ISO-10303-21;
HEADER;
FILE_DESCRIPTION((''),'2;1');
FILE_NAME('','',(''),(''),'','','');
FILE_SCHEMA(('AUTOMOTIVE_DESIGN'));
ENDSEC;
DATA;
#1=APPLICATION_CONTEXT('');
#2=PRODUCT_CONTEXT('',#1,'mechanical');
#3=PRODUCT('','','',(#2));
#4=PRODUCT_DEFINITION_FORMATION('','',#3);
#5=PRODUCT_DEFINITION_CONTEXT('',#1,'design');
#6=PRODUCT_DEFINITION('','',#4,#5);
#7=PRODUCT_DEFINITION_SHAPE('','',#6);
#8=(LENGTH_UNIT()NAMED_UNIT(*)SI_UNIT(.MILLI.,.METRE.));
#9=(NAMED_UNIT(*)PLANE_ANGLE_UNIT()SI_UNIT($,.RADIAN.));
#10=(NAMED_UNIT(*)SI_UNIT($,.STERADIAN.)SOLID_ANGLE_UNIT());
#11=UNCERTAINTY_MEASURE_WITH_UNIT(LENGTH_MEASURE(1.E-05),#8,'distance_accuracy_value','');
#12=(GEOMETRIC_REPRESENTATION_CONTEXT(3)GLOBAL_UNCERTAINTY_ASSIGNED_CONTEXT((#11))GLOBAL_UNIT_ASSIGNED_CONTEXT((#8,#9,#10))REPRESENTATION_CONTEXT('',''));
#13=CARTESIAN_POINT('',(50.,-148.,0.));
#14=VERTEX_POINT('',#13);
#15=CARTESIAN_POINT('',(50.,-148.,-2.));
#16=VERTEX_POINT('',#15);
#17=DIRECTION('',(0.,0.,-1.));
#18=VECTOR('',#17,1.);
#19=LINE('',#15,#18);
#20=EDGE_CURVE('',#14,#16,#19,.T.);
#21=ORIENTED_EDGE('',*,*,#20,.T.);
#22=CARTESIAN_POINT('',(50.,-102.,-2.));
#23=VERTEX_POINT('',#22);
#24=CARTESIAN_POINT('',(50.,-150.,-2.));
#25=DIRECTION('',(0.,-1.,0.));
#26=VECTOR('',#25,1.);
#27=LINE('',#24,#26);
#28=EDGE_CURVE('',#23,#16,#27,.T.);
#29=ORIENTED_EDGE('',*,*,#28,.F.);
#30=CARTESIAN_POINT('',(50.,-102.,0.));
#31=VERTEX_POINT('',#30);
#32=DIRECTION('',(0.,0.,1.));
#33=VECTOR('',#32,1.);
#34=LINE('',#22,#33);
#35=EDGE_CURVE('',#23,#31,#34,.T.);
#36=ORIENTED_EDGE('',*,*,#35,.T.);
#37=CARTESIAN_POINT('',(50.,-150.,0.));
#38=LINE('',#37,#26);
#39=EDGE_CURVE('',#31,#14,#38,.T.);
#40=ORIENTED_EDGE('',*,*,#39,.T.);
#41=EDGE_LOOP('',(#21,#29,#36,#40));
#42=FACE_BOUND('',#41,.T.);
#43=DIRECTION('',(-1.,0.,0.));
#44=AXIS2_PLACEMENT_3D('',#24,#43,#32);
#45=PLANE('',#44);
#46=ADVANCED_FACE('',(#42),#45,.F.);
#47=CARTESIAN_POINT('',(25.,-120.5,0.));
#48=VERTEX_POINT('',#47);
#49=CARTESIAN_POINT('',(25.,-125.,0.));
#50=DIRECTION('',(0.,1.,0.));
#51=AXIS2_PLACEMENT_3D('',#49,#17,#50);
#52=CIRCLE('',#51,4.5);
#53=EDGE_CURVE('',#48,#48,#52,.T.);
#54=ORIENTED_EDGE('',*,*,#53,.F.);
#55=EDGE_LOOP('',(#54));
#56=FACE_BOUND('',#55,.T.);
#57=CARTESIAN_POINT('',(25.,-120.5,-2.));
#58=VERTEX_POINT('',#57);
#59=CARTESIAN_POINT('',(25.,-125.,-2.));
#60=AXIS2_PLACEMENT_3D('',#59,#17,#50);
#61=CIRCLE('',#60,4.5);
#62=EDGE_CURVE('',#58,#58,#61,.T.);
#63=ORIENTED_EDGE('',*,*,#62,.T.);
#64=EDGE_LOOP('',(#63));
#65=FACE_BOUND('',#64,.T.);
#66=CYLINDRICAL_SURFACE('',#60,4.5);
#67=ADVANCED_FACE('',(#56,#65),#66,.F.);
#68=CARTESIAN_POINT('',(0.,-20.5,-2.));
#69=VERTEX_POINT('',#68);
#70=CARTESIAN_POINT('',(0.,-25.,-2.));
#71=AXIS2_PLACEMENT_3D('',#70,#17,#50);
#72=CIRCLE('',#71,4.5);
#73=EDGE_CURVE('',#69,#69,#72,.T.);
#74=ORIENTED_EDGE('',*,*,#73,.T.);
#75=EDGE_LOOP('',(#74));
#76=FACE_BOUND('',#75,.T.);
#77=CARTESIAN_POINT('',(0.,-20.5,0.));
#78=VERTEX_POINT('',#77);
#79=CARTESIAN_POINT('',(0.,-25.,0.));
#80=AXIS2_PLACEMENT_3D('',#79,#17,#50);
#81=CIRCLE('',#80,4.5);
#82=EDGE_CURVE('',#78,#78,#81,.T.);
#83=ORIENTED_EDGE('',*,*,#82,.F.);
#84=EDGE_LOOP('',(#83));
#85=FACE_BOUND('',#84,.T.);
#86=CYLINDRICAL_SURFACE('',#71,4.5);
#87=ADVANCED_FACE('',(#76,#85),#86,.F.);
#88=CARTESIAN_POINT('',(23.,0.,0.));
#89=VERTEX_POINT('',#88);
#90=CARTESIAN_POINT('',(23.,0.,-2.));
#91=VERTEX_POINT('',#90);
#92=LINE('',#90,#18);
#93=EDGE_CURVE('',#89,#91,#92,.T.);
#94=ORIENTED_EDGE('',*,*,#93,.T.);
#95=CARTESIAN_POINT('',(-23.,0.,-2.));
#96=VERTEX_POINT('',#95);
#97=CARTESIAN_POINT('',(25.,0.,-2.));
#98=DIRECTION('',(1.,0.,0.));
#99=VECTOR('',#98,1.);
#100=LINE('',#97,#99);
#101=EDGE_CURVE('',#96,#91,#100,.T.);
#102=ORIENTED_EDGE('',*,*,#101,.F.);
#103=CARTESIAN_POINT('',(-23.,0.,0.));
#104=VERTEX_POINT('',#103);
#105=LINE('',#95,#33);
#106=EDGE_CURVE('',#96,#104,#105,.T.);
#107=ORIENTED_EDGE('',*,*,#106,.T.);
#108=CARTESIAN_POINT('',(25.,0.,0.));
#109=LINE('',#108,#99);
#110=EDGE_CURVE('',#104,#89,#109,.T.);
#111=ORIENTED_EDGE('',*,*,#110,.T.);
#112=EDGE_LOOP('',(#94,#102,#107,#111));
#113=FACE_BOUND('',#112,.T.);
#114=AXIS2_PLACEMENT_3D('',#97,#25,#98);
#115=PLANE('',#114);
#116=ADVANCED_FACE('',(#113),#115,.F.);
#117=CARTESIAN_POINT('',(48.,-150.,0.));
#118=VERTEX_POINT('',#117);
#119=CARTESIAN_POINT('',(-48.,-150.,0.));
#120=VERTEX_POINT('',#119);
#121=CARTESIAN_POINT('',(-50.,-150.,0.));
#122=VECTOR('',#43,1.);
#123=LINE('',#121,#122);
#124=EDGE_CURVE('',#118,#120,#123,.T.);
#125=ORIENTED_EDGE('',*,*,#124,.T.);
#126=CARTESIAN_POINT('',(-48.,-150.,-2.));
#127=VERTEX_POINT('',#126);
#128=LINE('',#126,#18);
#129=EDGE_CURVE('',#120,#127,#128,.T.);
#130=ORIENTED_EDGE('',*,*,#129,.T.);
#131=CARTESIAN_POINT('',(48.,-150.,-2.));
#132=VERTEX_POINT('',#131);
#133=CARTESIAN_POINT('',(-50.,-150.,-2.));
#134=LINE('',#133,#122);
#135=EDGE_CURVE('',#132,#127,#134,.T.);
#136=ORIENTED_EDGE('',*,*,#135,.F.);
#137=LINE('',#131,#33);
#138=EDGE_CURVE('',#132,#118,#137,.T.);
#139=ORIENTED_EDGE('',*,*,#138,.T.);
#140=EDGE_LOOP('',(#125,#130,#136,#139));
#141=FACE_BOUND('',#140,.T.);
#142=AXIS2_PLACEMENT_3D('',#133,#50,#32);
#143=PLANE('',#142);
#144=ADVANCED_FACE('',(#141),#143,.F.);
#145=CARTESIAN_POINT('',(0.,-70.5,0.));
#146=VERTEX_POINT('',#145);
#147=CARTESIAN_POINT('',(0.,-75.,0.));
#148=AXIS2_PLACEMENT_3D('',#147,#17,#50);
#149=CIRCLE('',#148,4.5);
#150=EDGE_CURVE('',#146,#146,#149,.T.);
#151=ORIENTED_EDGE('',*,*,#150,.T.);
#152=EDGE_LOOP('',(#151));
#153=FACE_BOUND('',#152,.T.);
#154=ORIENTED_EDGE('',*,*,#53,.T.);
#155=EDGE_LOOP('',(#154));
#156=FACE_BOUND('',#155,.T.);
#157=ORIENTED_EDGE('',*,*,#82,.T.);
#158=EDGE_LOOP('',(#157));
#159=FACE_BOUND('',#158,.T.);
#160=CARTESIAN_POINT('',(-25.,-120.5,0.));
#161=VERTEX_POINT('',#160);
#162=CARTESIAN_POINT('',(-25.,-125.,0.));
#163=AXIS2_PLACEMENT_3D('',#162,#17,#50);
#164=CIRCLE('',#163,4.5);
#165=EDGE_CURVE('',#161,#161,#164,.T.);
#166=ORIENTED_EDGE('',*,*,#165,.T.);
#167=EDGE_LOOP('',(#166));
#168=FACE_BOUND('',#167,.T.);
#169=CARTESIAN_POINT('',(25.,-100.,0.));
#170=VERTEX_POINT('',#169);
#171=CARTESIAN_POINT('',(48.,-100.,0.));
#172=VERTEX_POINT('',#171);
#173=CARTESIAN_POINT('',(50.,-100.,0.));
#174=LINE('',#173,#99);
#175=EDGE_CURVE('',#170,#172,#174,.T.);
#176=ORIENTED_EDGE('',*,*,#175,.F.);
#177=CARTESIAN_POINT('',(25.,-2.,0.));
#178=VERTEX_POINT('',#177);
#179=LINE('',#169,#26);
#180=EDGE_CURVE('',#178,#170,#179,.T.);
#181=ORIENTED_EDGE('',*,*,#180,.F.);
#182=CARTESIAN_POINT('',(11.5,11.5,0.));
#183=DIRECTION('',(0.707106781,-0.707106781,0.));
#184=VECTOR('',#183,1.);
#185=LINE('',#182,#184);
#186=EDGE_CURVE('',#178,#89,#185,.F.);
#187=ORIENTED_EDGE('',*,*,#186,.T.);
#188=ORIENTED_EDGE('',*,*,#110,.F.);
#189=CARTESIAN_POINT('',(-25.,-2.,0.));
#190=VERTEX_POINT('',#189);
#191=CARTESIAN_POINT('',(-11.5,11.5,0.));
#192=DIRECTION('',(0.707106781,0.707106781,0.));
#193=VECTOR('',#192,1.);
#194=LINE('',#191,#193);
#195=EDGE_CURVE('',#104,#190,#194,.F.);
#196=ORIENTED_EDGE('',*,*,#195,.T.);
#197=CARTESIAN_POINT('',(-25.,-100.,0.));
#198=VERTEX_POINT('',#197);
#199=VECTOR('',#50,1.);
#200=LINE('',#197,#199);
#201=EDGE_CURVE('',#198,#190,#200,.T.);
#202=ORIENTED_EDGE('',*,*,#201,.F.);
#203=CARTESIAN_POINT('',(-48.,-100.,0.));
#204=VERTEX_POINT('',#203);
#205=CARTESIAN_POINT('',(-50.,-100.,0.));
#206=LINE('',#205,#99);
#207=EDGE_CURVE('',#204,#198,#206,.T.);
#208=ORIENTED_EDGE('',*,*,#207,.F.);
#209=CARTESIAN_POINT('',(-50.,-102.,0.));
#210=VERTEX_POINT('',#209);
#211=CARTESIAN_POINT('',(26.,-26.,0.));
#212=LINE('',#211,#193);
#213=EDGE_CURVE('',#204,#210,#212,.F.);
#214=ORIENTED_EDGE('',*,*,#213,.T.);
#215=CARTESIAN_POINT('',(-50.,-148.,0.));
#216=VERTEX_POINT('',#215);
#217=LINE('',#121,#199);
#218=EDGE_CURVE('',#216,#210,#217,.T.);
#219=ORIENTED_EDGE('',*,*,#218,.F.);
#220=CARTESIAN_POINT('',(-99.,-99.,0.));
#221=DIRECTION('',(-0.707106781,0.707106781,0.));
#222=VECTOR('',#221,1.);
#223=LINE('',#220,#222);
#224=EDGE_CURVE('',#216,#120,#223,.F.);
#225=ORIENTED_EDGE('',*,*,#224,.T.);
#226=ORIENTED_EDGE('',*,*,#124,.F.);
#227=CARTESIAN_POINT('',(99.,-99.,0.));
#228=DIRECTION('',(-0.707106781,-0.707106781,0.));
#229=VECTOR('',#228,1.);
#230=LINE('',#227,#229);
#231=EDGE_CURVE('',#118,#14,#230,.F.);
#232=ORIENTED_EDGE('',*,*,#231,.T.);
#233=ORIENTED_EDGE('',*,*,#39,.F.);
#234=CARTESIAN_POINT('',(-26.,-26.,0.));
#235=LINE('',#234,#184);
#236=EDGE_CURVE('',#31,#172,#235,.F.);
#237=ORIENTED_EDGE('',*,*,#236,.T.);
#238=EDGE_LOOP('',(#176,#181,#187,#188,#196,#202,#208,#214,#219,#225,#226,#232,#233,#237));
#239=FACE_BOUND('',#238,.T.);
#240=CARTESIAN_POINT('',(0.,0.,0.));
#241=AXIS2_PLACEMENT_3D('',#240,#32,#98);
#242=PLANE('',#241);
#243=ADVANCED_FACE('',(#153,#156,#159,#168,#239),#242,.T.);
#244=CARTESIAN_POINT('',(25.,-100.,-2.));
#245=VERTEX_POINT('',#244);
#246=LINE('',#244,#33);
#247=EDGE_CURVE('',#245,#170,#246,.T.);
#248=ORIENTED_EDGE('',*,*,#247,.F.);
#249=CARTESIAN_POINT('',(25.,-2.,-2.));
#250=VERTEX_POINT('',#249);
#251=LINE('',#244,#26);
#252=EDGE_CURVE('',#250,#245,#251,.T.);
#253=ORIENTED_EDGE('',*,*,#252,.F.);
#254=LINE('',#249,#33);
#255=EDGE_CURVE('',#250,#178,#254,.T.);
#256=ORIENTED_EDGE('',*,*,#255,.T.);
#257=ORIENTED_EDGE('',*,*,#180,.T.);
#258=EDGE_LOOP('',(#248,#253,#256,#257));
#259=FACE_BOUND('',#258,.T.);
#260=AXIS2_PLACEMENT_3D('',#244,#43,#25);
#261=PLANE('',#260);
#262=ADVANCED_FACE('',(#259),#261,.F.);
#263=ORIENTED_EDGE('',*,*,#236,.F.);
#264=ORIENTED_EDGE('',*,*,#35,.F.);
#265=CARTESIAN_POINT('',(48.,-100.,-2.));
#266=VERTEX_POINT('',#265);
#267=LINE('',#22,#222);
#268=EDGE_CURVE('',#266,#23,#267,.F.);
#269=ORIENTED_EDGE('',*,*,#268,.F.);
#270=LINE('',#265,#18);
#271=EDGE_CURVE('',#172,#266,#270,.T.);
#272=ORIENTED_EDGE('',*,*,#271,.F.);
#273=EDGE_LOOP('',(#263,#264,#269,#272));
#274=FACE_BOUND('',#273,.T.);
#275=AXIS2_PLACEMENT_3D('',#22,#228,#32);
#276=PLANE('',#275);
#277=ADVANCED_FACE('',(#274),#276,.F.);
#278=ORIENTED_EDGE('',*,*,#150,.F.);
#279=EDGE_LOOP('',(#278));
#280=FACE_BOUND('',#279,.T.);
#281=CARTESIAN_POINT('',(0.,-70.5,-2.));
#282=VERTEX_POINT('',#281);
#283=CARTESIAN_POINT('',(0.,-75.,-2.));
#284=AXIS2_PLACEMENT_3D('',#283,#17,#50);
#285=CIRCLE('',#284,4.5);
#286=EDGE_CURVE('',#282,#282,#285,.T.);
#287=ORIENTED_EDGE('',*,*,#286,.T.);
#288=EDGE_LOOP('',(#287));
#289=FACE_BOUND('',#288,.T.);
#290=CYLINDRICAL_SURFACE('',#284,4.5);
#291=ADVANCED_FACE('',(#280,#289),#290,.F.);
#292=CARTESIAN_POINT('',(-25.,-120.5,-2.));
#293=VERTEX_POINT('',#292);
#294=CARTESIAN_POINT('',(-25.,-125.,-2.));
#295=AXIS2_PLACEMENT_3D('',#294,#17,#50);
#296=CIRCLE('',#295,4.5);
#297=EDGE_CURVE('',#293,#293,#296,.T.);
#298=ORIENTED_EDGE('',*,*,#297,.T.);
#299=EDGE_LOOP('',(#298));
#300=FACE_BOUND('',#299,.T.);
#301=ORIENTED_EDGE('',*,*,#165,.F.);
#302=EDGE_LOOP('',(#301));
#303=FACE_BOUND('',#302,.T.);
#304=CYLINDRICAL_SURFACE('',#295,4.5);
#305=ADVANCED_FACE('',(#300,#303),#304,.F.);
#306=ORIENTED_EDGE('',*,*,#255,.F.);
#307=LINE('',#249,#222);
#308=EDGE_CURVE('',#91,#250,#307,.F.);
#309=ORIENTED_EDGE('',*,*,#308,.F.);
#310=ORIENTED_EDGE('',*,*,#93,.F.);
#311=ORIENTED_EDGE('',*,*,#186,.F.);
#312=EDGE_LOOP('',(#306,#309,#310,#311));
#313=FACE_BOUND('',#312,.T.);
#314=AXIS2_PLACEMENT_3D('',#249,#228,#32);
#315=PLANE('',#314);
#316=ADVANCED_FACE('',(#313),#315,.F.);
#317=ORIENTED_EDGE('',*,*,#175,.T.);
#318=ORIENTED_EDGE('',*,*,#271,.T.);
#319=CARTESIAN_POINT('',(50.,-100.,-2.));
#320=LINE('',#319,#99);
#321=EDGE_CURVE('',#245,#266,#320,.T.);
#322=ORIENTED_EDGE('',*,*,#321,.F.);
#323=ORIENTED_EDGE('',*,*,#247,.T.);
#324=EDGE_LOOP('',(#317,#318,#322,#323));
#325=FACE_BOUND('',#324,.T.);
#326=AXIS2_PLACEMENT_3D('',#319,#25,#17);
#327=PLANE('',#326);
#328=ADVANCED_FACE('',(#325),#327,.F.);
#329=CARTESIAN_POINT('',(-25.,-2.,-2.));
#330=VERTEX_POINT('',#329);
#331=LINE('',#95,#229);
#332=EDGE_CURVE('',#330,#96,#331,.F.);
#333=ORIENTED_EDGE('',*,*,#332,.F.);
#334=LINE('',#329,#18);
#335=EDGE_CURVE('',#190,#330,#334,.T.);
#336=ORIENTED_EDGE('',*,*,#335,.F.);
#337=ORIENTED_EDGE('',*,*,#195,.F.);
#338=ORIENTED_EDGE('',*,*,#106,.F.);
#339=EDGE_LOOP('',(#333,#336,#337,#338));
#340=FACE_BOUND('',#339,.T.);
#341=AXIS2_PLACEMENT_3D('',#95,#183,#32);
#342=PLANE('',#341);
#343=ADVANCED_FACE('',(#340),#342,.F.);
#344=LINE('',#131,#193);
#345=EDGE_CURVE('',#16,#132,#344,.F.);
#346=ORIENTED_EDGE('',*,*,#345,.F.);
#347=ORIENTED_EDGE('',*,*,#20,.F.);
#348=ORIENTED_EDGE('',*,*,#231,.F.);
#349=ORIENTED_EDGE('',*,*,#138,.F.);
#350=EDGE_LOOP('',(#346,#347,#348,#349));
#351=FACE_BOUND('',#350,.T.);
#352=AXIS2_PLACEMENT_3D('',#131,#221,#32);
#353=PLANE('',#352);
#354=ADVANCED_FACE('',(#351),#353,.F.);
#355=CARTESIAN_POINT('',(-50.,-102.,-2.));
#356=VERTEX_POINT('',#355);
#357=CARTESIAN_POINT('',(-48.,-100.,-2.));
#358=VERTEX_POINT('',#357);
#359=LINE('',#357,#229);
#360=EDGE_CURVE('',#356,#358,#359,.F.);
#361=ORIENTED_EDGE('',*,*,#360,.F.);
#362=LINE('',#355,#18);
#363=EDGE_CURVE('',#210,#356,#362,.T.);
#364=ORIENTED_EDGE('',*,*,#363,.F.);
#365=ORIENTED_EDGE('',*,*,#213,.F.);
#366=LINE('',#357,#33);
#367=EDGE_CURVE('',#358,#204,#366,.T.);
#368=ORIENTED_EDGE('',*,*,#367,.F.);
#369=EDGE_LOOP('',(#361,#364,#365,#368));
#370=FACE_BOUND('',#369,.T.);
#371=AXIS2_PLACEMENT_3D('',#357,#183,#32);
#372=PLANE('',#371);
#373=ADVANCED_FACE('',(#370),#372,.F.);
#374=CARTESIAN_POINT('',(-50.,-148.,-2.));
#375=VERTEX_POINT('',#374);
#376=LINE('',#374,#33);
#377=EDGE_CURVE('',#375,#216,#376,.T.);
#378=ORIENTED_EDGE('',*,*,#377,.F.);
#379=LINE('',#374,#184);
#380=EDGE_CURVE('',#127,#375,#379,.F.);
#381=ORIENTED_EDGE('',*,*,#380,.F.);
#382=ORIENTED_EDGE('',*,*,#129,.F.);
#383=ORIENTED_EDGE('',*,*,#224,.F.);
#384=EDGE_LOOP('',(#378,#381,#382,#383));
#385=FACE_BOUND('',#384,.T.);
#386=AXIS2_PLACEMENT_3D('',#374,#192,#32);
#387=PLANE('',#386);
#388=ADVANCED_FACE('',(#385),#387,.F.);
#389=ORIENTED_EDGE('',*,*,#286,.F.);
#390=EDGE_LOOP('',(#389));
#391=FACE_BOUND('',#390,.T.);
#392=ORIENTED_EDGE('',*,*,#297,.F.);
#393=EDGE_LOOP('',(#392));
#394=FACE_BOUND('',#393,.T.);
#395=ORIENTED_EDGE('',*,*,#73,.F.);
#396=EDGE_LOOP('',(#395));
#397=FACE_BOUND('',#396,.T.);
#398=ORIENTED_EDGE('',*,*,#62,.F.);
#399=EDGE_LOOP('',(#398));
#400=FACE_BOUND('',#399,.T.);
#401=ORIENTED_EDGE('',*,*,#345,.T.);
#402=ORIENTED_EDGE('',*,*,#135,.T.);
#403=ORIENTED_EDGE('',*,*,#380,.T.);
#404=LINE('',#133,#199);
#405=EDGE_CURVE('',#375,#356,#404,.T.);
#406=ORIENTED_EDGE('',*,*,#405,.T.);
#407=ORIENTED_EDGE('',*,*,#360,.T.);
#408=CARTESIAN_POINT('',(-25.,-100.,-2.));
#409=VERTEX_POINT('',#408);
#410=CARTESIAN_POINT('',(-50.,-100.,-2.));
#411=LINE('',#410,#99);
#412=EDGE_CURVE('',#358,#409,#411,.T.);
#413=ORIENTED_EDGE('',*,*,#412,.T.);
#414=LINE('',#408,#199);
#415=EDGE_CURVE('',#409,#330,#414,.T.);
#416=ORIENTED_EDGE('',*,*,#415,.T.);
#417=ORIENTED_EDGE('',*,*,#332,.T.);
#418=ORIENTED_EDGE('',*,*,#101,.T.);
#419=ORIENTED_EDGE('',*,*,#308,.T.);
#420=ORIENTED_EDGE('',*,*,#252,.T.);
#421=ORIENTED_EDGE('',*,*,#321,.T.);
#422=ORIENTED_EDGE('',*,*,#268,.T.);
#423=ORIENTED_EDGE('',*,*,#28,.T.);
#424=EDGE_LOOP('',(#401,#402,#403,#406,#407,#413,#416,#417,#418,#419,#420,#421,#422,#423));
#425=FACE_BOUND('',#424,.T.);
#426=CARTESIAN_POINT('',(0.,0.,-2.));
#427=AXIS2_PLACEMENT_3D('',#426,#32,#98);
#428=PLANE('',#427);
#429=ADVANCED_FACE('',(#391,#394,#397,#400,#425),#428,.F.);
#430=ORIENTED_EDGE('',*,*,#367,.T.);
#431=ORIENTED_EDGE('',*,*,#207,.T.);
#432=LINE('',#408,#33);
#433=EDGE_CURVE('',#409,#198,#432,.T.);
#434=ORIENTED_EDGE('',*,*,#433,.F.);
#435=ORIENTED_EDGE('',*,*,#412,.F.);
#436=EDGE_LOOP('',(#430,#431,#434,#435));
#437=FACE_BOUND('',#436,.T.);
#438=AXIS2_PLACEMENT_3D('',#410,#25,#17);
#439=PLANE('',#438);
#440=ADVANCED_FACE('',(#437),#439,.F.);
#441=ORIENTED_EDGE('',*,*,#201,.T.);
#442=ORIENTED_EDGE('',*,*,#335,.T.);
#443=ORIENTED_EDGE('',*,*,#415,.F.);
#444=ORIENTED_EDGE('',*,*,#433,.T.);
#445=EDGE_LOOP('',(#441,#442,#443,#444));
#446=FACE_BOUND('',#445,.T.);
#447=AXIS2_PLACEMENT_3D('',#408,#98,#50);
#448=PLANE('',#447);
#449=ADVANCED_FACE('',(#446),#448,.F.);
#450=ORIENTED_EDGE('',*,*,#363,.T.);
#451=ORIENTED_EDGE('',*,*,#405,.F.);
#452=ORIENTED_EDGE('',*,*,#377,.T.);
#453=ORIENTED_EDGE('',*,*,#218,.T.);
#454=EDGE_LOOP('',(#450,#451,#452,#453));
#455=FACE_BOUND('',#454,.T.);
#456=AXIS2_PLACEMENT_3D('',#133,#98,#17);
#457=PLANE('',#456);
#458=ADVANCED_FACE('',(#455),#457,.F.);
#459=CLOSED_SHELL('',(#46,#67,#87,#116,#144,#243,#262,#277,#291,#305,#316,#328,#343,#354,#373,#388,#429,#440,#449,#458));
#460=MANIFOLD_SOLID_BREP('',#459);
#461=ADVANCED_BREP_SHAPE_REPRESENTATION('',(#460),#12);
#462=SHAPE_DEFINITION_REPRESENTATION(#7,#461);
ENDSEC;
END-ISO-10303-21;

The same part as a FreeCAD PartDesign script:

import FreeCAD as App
import Part
import Sketcher
from FreeCAD import Vector


def edges_at(feature, points):
    """Names of the edges that pass closest to the given points."""
    edges = feature.Shape.Edges
    near = lambda p: min(range(len(edges)), key=lambda i: edges[i].distToShape(Part.Vertex(*p))[0])
    return sorted({f"Edge{near(p) + 1}" for p in points})

doc = App.newDocument("Part")
body = doc.addObject("PartDesign::Body", "Body")

sketch1 = body.newObject("Sketcher::SketchObject", "Sketch")
sketch1.AttachmentSupport = (doc.getObject("XY_Plane"), [""])
sketch1.MapMode = "FlatFace"
sketch1.addGeometry(Part.LineSegment(Vector(50, -150, 0), Vector(-50, -150, 0)), False)
sketch1.addGeometry(Part.LineSegment(Vector(-50, -150, 0), Vector(-50, -100, 0)), False)
sketch1.addGeometry(Part.LineSegment(Vector(-50, -100, 0), Vector(-25, -100, 0)), False)
sketch1.addGeometry(Part.LineSegment(Vector(-25, -100, 0), Vector(-25, 0, 0)), False)
sketch1.addGeometry(Part.LineSegment(Vector(-25, 0, 0), Vector(25, 0, 0)), False)
sketch1.addGeometry(Part.LineSegment(Vector(25, 0, 0), Vector(25, -100, 0)), False)
sketch1.addGeometry(Part.LineSegment(Vector(25, -100, 0), Vector(50, -100, 0)), False)
sketch1.addGeometry(Part.LineSegment(Vector(50, -100, 0), Vector(50, -150, 0)), False)
sketch1.addConstraint(Sketcher.Constraint("Coincident", 0, 2, 1, 1))
sketch1.addConstraint(Sketcher.Constraint("Coincident", 1, 2, 2, 1))
sketch1.addConstraint(Sketcher.Constraint("Coincident", 2, 2, 3, 1))
sketch1.addConstraint(Sketcher.Constraint("Coincident", 3, 2, 4, 1))
sketch1.addConstraint(Sketcher.Constraint("Coincident", 4, 2, 5, 1))
sketch1.addConstraint(Sketcher.Constraint("Coincident", 5, 2, 6, 1))
sketch1.addConstraint(Sketcher.Constraint("Coincident", 6, 2, 7, 1))
sketch1.addConstraint(Sketcher.Constraint("Coincident", 7, 2, 0, 1))
sketch1.addConstraint(Sketcher.Constraint("Horizontal", 0))
sketch1.addConstraint(Sketcher.Constraint("Vertical", 1))
sketch1.addConstraint(Sketcher.Constraint("Horizontal", 2))
sketch1.addConstraint(Sketcher.Constraint("Vertical", 3))
sketch1.addConstraint(Sketcher.Constraint("Horizontal", 4))
sketch1.addConstraint(Sketcher.Constraint("Vertical", 5))
sketch1.addConstraint(Sketcher.Constraint("Horizontal", 6))
sketch1.addConstraint(Sketcher.Constraint("Vertical", 7))
sketch1.addConstraint(Sketcher.Constraint("Symmetric", 3, 2, 4, 2, -1, 1))
sketch1.addConstraint(Sketcher.Constraint("Symmetric", 1, 2, 6, 2, -2))
sketch1.addConstraint(Sketcher.Constraint("Equal", 4, 1))
sketch1.addConstraint(Sketcher.Constraint("Equal", 0, 3))
sketch1.addConstraint(Sketcher.Constraint("DistanceX", 0, 2, 0, 1, 100.0))
sketch1.addConstraint(Sketcher.Constraint("DistanceX", 2, 1, 2, 2, 25.0))
pad1 = body.newObject("PartDesign::Pad", "Pad")
pad1.Profile = sketch1
pad1.Length = 2
pad1.Reversed = True

sketch2 = body.newObject("Sketcher::SketchObject", "Sketch001")
sketch2.AttachmentSupport = (doc.getObject("XY_Plane"), [""])
sketch2.MapMode = "FlatFace"
sketch2.AttachmentOffset = App.Placement(Vector(0, 0, -2), App.Rotation())
sketch2.addGeometry(Part.Circle(Vector(0, -25, 0), Vector(0, 0, 1), 4.5), False)
sketch2.addGeometry(Part.Circle(Vector(-25, -125, 0), Vector(0, 0, 1), 4.5), False)
sketch2.addGeometry(Part.Circle(Vector(25, -125, 0), Vector(0, 0, 1), 4.5), False)
sketch2.addGeometry(Part.Circle(Vector(0, -75, 0), Vector(0, 0, 1), 4.5), False)
sketch2.addConstraint(Sketcher.Constraint("Equal", 0, 1))
sketch2.addConstraint(Sketcher.Constraint("Equal", 1, 2))
sketch2.addConstraint(Sketcher.Constraint("Equal", 2, 3))
sketch2.addConstraint(Sketcher.Constraint("Symmetric", 1, 3, 2, 3, -2))
sketch2.addConstraint(Sketcher.Constraint("PointOnObject", 0, 3, -2))
sketch2.addConstraint(Sketcher.Constraint("PointOnObject", 3, 3, -2))
sketch2.addConstraint(Sketcher.Constraint("Diameter", 0, 9.0))
sketch2.addConstraint(Sketcher.Constraint("DistanceY", 0, 3, -1, 1, 25.0))
sketch2.addConstraint(Sketcher.Constraint("DistanceX", 1, 3, -1, 1, 25.0))
sketch2.addConstraint(Sketcher.Constraint("DistanceY", 1, 3, -1, 1, 125.0))
sketch2.addConstraint(Sketcher.Constraint("DistanceY", 3, 3, -1, 1, 75.0))
doc.recompute()
hole = body.newObject("PartDesign::Hole", "Hole")
hole.Profile = sketch2
hole.ThreadType = "None"
hole.Diameter = 9
hole.DepthType = "ThroughAll"
hole.Reversed = True
doc.recompute()

chamfer = body.newObject("PartDesign::Chamfer", "Chamfer")
chamfer.Base = (hole, edges_at(hole, [
    (-50, -100, -1),
    (-50, -150, -1),
    (50, -150, -1),
    (50, -100, -1),
    (25, 0, -1),
    (-25, 0, -1),
]))
chamfer.Size = 2

doc.recompute()
